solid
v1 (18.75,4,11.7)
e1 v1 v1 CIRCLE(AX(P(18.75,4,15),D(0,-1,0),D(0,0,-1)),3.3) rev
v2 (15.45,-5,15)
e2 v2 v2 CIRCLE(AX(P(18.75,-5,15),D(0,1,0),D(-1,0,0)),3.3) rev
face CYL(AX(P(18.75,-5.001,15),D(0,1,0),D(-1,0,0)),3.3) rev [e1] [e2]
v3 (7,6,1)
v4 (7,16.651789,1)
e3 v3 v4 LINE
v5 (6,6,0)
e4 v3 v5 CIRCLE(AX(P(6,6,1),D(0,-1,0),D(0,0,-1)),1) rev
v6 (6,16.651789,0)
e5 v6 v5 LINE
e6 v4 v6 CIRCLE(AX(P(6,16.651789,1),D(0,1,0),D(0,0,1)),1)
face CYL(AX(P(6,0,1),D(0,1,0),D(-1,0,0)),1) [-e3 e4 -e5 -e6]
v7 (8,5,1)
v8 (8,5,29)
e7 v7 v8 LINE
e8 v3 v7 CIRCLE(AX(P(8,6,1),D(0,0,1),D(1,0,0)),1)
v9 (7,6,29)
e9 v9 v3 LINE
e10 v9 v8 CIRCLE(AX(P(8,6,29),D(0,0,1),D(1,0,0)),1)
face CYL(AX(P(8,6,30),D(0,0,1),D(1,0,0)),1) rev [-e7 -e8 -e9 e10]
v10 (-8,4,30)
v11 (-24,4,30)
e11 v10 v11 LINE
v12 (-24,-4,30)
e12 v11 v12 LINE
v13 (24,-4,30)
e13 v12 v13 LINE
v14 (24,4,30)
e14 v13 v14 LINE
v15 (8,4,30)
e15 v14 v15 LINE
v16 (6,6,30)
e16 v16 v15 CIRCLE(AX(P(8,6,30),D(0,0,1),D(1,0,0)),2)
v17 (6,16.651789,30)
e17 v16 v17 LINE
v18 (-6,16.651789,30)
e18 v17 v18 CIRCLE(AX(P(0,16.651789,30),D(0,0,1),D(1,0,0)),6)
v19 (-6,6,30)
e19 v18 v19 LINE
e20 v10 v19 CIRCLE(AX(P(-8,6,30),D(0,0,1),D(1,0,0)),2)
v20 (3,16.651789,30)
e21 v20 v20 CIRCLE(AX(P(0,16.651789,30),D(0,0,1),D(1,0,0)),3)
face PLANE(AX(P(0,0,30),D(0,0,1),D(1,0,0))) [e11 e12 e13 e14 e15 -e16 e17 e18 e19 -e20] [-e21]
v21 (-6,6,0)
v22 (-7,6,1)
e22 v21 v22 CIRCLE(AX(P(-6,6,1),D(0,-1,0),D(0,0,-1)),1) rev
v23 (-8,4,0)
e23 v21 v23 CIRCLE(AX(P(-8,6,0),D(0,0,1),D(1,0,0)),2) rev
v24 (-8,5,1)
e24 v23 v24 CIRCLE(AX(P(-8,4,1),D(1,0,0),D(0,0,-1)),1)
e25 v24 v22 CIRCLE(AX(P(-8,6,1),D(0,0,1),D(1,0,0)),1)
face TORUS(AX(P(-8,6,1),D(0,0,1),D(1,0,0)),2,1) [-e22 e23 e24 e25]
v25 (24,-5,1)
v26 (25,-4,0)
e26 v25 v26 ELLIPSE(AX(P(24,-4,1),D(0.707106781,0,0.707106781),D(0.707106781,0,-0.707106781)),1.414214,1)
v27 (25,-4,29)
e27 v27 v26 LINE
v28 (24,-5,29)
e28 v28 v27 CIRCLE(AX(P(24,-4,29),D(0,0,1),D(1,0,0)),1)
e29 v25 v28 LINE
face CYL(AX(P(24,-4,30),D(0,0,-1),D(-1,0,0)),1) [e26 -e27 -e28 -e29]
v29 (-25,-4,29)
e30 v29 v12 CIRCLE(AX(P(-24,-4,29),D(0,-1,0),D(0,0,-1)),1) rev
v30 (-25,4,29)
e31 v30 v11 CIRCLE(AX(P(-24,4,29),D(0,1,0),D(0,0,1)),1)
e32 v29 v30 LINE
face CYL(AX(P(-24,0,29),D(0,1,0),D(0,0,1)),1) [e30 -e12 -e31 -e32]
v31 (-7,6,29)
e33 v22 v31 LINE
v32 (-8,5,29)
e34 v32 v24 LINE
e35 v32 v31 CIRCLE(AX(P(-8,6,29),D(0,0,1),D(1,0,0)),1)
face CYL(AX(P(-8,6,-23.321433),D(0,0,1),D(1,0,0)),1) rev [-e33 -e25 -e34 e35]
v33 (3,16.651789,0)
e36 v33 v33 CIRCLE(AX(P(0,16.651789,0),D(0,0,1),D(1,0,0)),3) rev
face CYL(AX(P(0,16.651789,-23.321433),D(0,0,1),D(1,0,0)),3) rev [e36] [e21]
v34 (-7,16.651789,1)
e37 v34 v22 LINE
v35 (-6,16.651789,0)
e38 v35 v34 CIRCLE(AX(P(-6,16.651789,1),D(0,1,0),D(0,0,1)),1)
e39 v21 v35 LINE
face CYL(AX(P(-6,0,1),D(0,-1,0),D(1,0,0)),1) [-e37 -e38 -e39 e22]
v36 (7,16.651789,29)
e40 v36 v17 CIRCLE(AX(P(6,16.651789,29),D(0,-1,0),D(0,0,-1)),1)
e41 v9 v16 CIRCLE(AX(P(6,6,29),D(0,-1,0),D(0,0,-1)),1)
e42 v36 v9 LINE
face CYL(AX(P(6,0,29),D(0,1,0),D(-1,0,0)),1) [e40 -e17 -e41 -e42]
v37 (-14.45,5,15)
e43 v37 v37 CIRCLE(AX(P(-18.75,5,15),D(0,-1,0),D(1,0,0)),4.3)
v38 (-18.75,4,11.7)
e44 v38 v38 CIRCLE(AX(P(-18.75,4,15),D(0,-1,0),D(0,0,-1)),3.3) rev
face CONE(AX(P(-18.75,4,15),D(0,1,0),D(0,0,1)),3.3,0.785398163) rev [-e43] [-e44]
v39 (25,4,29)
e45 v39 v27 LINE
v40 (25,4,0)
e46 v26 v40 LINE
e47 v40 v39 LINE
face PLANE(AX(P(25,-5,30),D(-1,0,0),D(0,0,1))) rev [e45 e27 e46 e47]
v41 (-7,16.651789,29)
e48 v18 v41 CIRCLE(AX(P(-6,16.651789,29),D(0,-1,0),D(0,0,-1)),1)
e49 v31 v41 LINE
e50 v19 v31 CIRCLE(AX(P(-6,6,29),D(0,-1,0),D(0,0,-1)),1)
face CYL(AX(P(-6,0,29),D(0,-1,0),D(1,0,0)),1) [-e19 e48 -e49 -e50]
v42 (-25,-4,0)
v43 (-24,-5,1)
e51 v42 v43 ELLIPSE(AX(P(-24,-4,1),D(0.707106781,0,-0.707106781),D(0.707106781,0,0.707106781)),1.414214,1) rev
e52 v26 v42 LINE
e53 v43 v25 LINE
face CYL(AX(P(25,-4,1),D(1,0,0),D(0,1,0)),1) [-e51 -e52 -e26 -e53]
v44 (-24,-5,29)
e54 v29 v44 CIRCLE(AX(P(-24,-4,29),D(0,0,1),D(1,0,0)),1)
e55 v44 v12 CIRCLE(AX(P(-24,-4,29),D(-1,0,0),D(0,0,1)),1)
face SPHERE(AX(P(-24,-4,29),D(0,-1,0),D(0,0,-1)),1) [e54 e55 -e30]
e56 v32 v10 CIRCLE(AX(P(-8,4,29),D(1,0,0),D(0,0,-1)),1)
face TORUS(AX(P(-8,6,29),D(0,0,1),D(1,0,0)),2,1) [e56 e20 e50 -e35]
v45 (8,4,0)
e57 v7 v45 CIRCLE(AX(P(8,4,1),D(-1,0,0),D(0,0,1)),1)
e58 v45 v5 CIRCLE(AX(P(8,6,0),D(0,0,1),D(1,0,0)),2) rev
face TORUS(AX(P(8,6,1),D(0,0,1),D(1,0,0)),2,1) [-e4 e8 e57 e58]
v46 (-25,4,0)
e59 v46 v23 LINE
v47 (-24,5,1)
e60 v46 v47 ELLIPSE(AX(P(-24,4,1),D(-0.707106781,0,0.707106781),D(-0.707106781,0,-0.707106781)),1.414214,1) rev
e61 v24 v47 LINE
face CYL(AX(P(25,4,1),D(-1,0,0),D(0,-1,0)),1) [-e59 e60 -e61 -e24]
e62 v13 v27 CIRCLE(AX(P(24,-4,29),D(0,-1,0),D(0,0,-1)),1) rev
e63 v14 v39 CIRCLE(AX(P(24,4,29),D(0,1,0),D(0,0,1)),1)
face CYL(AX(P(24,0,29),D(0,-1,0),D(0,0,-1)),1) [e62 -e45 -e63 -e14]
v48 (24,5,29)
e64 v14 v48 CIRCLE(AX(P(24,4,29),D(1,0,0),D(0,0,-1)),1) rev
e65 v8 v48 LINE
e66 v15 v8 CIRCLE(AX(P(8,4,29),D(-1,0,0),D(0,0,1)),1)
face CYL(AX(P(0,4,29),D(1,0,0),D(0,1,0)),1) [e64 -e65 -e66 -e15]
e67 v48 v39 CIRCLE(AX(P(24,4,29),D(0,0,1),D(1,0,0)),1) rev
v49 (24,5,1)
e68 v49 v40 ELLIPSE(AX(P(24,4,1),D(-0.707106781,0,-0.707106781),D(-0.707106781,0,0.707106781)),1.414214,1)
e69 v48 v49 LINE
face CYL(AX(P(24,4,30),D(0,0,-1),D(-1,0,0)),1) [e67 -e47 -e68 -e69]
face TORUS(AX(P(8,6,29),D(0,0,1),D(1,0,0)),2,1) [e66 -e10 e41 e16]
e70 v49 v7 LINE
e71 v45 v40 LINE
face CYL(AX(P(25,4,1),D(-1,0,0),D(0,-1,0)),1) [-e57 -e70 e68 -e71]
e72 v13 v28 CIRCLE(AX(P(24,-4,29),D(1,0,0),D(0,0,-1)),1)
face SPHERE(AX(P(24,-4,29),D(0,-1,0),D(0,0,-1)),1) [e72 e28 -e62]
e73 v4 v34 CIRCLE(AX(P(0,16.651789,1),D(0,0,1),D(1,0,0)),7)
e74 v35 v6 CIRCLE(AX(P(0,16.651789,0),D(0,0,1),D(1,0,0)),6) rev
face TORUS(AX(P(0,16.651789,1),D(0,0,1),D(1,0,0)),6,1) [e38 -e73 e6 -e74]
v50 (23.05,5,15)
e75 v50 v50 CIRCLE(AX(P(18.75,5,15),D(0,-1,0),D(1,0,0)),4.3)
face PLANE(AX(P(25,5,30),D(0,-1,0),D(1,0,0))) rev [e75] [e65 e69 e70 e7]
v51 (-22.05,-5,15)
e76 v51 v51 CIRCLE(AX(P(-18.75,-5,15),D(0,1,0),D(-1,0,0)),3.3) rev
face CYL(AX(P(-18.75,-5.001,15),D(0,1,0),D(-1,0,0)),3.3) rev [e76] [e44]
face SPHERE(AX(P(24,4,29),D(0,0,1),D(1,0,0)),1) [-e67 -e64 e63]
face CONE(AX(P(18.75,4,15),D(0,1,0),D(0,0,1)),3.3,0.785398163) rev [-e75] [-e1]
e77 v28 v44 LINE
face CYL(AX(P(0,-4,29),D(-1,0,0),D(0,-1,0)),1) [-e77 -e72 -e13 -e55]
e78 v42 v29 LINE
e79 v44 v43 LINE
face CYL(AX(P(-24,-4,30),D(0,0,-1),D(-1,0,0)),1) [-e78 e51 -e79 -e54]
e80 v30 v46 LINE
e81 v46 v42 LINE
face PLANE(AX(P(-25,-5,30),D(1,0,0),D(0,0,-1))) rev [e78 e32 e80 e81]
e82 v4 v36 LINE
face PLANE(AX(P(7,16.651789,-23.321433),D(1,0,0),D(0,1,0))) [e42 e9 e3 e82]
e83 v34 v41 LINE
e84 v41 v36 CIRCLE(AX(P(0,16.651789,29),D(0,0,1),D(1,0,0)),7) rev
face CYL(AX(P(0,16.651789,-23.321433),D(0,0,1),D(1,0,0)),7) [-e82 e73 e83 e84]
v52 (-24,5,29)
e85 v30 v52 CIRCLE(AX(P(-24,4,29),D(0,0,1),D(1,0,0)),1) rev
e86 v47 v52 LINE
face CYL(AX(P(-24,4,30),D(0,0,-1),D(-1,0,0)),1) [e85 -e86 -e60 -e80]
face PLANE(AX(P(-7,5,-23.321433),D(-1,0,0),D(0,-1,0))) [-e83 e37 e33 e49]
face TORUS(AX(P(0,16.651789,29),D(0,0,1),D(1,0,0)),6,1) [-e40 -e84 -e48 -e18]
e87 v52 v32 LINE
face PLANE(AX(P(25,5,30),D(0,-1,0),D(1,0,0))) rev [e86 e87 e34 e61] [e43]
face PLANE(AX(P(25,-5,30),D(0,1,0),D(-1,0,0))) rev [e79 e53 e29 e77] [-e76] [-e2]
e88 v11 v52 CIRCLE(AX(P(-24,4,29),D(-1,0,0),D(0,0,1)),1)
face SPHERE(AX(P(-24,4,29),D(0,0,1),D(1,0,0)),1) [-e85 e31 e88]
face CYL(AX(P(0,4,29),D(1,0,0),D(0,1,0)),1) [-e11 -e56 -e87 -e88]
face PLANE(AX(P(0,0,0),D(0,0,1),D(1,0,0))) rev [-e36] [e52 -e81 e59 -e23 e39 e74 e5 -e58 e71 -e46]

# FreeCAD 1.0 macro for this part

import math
import FreeCAD as App
import Part
import Sketcher
from FreeCAD import Vector
Q = App.Units.Quantity


def edges_at(feature, points):
    """Names of the edges that pass closest to the given points."""
    edges = feature.Shape.Edges
    near = lambda p: min(range(len(edges)), key=lambda i: edges[i].distToShape(Part.Vertex(*p))[0])
    return sorted({f"Edge{near(p) + 1}" for p in points})

doc = App.newDocument("Part")
body = doc.addObject("PartDesign::Body", "Body")

# Sketch on XY plane
sketch1 = doc.addObject("Sketcher::SketchObject", "Sketch")
body.addObject(sketch1)
sketch1.AttachmentSupport = (doc.XY_Plane, [""])
sketch1.MapMode = "FlatFace"
sketch1.addGeometry(Part.LineSegment(Vector(-25, 5, 0), Vector(-25, -5, 0)), False)
sketch1.addGeometry(Part.LineSegment(Vector(-25, -5, 0), Vector(25, -5, 0)), False)
sketch1.addGeometry(Part.LineSegment(Vector(25, -5, 0), Vector(25, 5, 0)), False)
sketch1.addGeometry(Part.LineSegment(Vector(25, 5, 0), Vector(-25, 5, 0)), False)
sketch1.addConstraint(Sketcher.Constraint("Coincident", 0, 2, 1, 1))
sketch1.addConstraint(Sketcher.Constraint("Coincident", 1, 2, 2, 1))
sketch1.addConstraint(Sketcher.Constraint("Coincident", 2, 2, 3, 1))
sketch1.addConstraint(Sketcher.Constraint("Coincident", 3, 2, 0, 1))
sketch1.addConstraint(Sketcher.Constraint("Vertical", 0))
sketch1.addConstraint(Sketcher.Constraint("Horizontal", 1))
sketch1.addConstraint(Sketcher.Constraint("Vertical", 2))
sketch1.addConstraint(Sketcher.Constraint("Horizontal", 3))
sketch1.addConstraint(Sketcher.Constraint("Symmetric", 0, 2, 2, 2, -1, 1))
sketch1.addConstraint(Sketcher.Constraint("DistanceX", 1, 1, 1, 2, Q("50 mm")))
sketch1.addConstraint(Sketcher.Constraint("DistanceY", 0, 2, 0, 1, Q("10 mm")))
pad1 = doc.addObject("PartDesign::Pad", "Pad")
body.addObject(pad1)
pad1.Profile = sketch1
pad1.Length = 30

# Sketch on XY plane
sketch2 = doc.addObject("Sketcher::SketchObject", "Sketch001")
body.addObject(sketch2)
sketch2.AttachmentSupport = (doc.XY_Plane, [""])
sketch2.MapMode = "FlatFace"
sketch2.AttachmentOffset = App.Placement(Vector(0, 0, 30), App.Rotation())
sketch2.addGeometry(Part.LineSegment(Vector(-7, 16.651789, 0), Vector(-7, 5, 0)), False)
sketch2.addGeometry(Part.LineSegment(Vector(-7, 5, 0), Vector(7, 5, 0)), False)
sketch2.addGeometry(Part.LineSegment(Vector(7, 5, 0), Vector(7, 16.651789, 0)), False)
sketch2.addGeometry(Part.ArcOfCircle(Part.Circle(Vector(0, 16.651789, 0), Vector(0, 0, 1), 7), math.radians(0), math.radians(180)), False)
sketch2.addGeometry(Part.Circle(Vector(0, 16.651789, 0), Vector(0, 0, 1), 3), False)
sketch2.addConstraint(Sketcher.Constraint("Coincident", 0, 2, 1, 1))
sketch2.addConstraint(Sketcher.Constraint("Coincident", 1, 2, 2, 1))
sketch2.addConstraint(Sketcher.Constraint("Tangent", 2, 2, 3, 1))
sketch2.addConstraint(Sketcher.Constraint("Tangent", 3, 2, 0, 1))
sketch2.addConstraint(Sketcher.Constraint("Vertical", 0))
sketch2.addConstraint(Sketcher.Constraint("Horizontal", 1))
sketch2.addConstraint(Sketcher.Constraint("Vertical", 2))
sketch2.addConstraint(Sketcher.Constraint("Coincident", 4, 3, 3, 3))
sketch2.addConstraint(Sketcher.Constraint("PointOnObject", 3, 3, -2))
sketch2.addConstraint(Sketcher.Constraint("Diameter", 4, Q("6 mm")))
sketch2.addConstraint(Sketcher.Constraint("Radius", 3, Q("7 mm")))
sketch2.addConstraint(Sketcher.Constraint("DistanceY", -1, 1, 0, 2, Q("5 mm")))
sketch2.addConstraint(Sketcher.Constraint("DistanceY", 0, 2, 0, 1, Q("11.651789 mm")))
pad2 = doc.addObject("PartDesign::Pad", "Pad001")
body.addObject(pad2)
pad2.Profile = sketch2
pad2.Length = 30
pad2.Reversed = True

# Sketch on XZ plane
sketch3 = doc.addObject("Sketcher::SketchObject", "Sketch002")
body.addObject(sketch3)
sketch3.AttachmentSupport = (doc.XZ_Plane, [""])
sketch3.MapMode = "FlatFace"
sketch3.AttachmentOffset = App.Placement(Vector(0, 0, -5), App.Rotation())
sketch3.addGeometry(Part.Circle(Vector(-18.75, 15, 0), Vector(0, 0, 1), 3.3), False)
sketch3.addConstraint(Sketcher.Constraint("Diameter", 0, Q("6.6 mm")))
sketch3.addConstraint(Sketcher.Constraint("DistanceY", -1, 1, 0, 3, Q("15 mm")))
sketch3.addConstraint(Sketcher.Constraint("DistanceX", 0, 3, -1, 1, Q("18.75 mm")))
pocket1 = doc.addObject("PartDesign::Pocket", "Pocket")
body.addObject(pocket1)
pocket1.Profile = sketch3
pocket1.Type = "UpToFirst"
pocket1.Reversed = True

# Sketch on XZ plane
sketch4 = doc.addObject("Sketcher::SketchObject", "Sketch003")
body.addObject(sketch4)
sketch4.AttachmentSupport = (doc.XZ_Plane, [""])
sketch4.MapMode = "FlatFace"
sketch4.AttachmentOffset = App.Placement(Vector(0, 0, -5), App.Rotation())
sketch4.addGeometry(Part.Circle(Vector(18.75, 15, 0), Vector(0, 0, 1), 3.3), False)
sketch4.addConstraint(Sketcher.Constraint("Diameter", 0, Q("6.6 mm")))
sketch4.addConstraint(Sketcher.Constraint("DistanceY", -1, 1, 0, 3, Q("15 mm")))
sketch4.addConstraint(Sketcher.Constraint("DistanceX", -1, 1, 0, 3, Q("18.75 mm")))
pocket2 = doc.addObject("PartDesign::Pocket", "Pocket001")
body.addObject(pocket2)
pocket2.Profile = sketch4
pocket2.Type = "UpToFirst"
pocket2.Reversed = True
doc.recompute()

fillet = doc.addObject("PartDesign::Fillet", "Fillet")
body.addObject(fillet)
fillet.Base = (pocket2, edges_at(pocket2, [
    (25, 0, 30),
    (-16, 5, 0),
    (-16, 5, 30),
    (16, 5, 30),
    (-7, 5, 15),
    (7, 5, 15),
    (7, 10.826, 30),
    (0, 23.652, 30),
    (-7, 10.826, 30),
    (-7, 10.826, 0),
    (0, 23.652, 0),
    (7, 10.826, 0),
    (-25, 0, 30),
    (16, 5, 0),
    (0, -5, 0),
    (-25, 5, 15),
    (25, 5, 15),
    (25, -5, 15),
    (-25, -5, 15),
    (0, -5, 30),
]))
fillet.Radius = 1
doc.recompute()

chamfer = doc.addObject("PartDesign::Chamfer", "Chamfer")
body.addObject(chamfer)
chamfer.Base = (fillet, edges_at(fillet, [(-15.45, 5, 15), (22.05, 5, 15)]))
chamfer.Size = 1

doc.recompute()
